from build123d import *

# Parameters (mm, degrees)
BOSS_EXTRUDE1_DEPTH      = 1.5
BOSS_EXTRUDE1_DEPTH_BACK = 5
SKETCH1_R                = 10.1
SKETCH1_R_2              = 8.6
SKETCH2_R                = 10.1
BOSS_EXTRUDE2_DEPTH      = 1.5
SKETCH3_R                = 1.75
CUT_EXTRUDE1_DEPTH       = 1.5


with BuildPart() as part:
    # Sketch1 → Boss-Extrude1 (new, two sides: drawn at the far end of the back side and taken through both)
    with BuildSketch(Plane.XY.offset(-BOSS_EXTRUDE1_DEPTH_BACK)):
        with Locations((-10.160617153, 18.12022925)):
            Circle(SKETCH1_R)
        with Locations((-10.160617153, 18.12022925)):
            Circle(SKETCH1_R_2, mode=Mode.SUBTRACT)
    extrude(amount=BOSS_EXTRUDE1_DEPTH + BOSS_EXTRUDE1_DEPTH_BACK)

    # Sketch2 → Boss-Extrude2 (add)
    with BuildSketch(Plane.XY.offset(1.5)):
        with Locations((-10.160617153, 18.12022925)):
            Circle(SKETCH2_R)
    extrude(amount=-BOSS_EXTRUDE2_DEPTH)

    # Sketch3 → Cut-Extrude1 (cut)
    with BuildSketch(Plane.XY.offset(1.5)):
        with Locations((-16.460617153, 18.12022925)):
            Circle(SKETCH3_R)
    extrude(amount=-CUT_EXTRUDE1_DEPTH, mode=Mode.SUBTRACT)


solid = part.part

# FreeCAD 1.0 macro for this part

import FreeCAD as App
import Part
import Sketcher

doc = App.newDocument("Part")
body = doc.addObject("PartDesign::Body", "Body")

sketch1 = body.newObject("Sketcher::SketchObject", "Sketch")
sketch1.AttachmentSupport = (doc.getObject("XY_Plane"), [""])
sketch1.MapMode = "FlatFace"
sketch1.addGeometry([
    Part.Circle(App.Vector(-10.160617, 18.120229, 0), App.Vector(0, 0, 1), 10.1),
    Part.Circle(App.Vector(-10.160617, 18.120229, 0), App.Vector(0, 0, 1), 8.6),
], False)
sketch1.addConstraint([
    Sketcher.Constraint("Coincident", 1, 3, 0, 3),
    Sketcher.Constraint("Diameter", 0, 20.2),
    Sketcher.Constraint("Diameter", 1, 17.2),
    Sketcher.Constraint("DistanceY", -1, 1, 0, 3, 18.120229),
    Sketcher.Constraint("DistanceX", 0, 3, -1, 1, 10.160617),
])
pad1 = body.newObject("PartDesign::Pad", "Pad")
pad1.Profile = sketch1
pad1.Type = "TwoLengths"
pad1.Length = 1.5
pad1.Length2 = 5

sketch2 = body.newObject("Sketcher::SketchObject", "Sketch001")
sketch2.AttachmentSupport = (doc.getObject("XY_Plane"), [""])
sketch2.MapMode = "FlatFace"
sketch2.AttachmentOffset = App.Placement(App.Vector(0, 0, 1.5), App.Rotation())
sketch2.addGeometry(Part.Circle(App.Vector(-10.160617, 18.120229, 0), App.Vector(0, 0, 1), 10.1), False)
sketch2.addConstraint([
    Sketcher.Constraint("Diameter", 0, 20.2),
    Sketcher.Constraint("DistanceY", -1, 1, 0, 3, 18.120229),
    Sketcher.Constraint("DistanceX", 0, 3, -1, 1, 10.160617),
])
pad2 = body.newObject("PartDesign::Pad", "Pad001")
pad2.Profile = sketch2
pad2.Length = 1.5
pad2.Reversed = True

sketch3 = body.newObject("Sketcher::SketchObject", "Sketch002")
sketch3.AttachmentSupport = (doc.getObject("XY_Plane"), [""])
sketch3.MapMode = "FlatFace"
sketch3.AttachmentOffset = App.Placement(App.Vector(0, 0, 1.5), App.Rotation())
sketch3.addGeometry(Part.Circle(App.Vector(-16.460617, 18.120229, 0), App.Vector(0, 0, 1), 1.75), False)
sketch3.addConstraint([
    Sketcher.Constraint("Diameter", 0, 3.5),
    Sketcher.Constraint("DistanceY", -1, 1, 0, 3, 18.120229),
    Sketcher.Constraint("DistanceX", 0, 3, -1, 1, 16.460617),
])
pocket1 = body.newObject("PartDesign::Pocket", "Pocket")
pocket1.Profile = sketch3
pocket1.Length = 1.5

doc.recompute()
